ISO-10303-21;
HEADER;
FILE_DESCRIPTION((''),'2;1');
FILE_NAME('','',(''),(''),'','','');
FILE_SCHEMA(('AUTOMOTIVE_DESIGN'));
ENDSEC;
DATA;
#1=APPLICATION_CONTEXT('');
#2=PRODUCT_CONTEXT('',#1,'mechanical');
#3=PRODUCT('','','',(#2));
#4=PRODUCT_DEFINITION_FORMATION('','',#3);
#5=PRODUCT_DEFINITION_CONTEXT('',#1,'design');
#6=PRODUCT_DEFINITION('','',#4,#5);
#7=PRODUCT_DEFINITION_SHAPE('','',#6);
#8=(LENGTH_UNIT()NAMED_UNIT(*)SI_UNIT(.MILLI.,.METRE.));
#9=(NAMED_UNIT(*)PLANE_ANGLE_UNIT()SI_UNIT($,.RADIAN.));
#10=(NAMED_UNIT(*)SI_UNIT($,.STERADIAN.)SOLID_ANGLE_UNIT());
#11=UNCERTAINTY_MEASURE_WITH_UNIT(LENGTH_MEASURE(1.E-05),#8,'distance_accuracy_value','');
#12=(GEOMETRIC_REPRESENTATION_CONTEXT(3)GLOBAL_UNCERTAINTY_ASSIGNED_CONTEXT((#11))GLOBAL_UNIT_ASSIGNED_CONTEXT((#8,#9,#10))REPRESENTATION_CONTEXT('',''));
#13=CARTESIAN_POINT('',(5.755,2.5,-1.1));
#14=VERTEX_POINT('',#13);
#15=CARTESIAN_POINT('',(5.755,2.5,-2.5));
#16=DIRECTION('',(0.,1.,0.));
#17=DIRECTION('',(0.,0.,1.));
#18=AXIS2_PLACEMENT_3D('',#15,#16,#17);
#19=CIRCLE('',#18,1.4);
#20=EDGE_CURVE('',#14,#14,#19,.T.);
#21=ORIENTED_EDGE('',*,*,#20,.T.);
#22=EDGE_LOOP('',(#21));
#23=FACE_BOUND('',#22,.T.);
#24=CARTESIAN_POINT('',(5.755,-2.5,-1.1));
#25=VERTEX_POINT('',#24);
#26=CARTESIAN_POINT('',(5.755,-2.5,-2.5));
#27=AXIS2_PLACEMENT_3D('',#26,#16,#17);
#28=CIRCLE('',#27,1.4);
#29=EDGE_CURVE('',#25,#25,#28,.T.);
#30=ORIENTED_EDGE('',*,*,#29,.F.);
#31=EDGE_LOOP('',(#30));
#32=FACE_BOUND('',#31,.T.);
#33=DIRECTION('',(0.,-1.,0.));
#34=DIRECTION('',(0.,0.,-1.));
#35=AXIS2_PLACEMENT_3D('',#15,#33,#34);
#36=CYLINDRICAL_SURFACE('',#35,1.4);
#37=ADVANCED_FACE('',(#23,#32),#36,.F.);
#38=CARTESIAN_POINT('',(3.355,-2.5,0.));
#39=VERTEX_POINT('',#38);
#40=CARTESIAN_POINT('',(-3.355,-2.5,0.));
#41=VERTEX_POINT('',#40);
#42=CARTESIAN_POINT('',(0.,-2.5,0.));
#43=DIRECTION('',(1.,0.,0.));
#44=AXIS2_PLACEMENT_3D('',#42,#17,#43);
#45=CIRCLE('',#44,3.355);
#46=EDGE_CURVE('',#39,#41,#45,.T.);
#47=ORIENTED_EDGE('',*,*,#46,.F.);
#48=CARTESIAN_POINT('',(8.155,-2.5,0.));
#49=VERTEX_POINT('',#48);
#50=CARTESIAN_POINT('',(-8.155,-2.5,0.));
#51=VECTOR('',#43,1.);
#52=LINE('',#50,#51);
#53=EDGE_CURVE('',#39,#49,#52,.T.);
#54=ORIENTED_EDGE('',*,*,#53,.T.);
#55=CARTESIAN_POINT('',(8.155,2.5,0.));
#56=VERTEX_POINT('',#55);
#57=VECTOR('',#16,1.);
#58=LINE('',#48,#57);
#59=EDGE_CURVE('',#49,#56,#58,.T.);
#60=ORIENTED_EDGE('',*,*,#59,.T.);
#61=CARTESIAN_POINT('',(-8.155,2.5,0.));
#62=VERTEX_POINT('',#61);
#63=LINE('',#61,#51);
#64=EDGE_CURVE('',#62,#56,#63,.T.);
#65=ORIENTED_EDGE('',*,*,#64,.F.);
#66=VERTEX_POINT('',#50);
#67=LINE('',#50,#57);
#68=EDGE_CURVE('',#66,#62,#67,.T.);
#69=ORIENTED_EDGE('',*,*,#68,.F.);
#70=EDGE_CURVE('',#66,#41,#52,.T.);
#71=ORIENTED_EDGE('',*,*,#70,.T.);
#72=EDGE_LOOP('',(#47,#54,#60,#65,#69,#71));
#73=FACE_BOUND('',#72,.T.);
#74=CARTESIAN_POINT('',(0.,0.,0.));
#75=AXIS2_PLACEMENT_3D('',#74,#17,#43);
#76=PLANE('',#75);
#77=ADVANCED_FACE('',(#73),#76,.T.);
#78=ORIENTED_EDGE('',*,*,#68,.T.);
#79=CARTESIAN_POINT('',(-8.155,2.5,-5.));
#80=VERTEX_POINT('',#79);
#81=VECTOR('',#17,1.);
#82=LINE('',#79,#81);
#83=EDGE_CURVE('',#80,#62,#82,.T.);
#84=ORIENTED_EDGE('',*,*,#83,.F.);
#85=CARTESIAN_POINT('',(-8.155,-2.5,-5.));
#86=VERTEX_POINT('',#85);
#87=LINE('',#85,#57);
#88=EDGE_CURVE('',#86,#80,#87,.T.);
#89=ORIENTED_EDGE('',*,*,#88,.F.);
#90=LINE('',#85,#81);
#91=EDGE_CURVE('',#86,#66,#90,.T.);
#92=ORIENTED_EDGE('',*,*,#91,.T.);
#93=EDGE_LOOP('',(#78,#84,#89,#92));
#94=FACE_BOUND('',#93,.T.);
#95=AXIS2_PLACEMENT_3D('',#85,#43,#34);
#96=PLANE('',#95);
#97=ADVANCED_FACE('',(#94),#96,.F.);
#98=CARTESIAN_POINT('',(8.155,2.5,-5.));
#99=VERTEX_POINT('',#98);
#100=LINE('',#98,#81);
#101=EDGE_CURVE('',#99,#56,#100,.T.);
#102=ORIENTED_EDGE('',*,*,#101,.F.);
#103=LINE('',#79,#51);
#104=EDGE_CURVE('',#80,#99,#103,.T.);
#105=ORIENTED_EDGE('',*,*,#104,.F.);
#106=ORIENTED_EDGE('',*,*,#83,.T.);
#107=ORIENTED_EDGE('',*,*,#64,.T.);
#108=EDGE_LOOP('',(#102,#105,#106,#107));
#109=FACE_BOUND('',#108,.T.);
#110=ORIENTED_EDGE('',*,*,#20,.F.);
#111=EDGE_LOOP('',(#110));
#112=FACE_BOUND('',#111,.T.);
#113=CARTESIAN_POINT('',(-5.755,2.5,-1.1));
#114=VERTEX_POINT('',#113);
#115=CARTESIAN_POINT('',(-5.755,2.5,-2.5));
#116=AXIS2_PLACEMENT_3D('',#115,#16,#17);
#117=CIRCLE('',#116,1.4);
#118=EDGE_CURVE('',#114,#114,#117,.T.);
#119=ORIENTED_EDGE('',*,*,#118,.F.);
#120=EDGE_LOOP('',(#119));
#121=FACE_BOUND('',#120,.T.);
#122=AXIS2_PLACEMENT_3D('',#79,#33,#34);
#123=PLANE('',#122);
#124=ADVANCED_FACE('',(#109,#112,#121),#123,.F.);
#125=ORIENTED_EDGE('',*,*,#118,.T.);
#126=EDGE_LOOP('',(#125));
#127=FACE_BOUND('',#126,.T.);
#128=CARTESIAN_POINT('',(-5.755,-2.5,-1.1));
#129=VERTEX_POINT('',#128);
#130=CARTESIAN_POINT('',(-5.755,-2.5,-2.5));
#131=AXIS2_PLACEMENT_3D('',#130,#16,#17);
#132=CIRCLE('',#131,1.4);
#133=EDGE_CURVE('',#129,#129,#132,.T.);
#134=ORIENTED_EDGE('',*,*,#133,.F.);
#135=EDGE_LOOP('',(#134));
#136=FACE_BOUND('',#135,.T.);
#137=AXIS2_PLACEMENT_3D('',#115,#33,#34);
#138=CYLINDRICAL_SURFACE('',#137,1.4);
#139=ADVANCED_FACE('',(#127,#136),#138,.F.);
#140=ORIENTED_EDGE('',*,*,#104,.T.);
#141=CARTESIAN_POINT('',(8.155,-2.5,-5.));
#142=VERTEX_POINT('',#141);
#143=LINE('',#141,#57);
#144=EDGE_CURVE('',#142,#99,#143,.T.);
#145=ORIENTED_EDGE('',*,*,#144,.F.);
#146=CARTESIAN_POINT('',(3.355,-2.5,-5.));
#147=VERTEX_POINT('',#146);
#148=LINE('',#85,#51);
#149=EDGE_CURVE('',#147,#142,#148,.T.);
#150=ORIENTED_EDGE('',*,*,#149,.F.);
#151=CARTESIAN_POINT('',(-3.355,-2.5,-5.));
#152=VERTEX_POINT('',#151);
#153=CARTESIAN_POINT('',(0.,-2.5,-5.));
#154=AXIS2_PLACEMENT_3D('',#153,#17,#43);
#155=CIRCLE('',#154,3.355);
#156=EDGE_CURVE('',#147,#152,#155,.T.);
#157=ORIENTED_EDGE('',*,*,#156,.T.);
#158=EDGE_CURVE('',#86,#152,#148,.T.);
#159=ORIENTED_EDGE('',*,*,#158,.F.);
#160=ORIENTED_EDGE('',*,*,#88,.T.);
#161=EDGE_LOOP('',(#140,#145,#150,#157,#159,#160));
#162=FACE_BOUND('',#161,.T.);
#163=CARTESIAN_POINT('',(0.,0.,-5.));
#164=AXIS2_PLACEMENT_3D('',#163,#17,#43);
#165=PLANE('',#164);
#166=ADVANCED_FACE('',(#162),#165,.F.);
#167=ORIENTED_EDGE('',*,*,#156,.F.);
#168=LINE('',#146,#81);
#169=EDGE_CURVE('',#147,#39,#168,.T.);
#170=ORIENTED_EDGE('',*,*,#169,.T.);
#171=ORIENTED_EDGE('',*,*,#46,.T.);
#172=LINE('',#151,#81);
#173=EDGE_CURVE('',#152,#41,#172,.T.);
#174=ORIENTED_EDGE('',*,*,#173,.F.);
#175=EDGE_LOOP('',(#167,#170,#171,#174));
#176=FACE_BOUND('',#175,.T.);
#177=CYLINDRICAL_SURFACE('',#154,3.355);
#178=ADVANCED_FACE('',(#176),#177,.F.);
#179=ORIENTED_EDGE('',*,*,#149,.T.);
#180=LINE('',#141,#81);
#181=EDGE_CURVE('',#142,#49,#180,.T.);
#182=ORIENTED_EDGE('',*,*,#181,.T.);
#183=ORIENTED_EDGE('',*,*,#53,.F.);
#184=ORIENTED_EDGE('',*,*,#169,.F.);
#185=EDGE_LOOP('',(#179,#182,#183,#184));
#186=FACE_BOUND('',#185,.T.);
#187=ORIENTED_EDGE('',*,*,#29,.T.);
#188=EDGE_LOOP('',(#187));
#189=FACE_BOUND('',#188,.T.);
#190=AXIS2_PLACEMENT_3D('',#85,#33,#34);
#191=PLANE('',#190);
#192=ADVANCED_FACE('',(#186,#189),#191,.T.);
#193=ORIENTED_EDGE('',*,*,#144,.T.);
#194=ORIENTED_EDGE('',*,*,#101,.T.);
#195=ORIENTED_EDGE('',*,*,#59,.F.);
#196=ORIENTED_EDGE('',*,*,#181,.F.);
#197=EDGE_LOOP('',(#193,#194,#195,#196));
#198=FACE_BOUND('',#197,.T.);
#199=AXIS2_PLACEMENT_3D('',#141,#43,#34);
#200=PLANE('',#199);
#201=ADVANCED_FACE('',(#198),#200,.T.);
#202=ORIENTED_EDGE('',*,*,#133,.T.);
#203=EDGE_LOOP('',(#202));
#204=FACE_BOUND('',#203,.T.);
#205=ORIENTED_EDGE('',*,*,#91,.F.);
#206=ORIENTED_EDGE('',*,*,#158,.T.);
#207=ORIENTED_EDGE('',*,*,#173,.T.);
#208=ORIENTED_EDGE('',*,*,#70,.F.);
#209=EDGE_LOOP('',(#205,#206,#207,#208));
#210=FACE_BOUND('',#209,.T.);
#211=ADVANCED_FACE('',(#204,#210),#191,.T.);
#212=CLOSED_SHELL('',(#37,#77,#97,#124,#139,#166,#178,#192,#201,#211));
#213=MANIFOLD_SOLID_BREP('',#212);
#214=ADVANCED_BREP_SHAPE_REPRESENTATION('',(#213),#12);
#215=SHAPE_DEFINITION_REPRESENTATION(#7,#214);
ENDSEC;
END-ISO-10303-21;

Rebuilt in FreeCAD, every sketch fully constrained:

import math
import FreeCAD as App
import Part
import Sketcher

V = App.Vector
Q = App.Units.Quantity


def add_polygon(sketch, points):
    """Adds a closed chain of lines whose ends are joined by coincident constraints."""
    first, n = sketch.GeometryCount, len(points)
    for a, b in zip(points, points[1:] + points[:1]):
        sketch.addGeometry(Part.LineSegment(App.Vector(*a, 0), App.Vector(*b, 0)), False)
    for i in range(n):
        sketch.addConstraint(Sketcher.Constraint("Coincident", first + i, 2, first + (i + 1) % n, 1))

doc = App.newDocument("Part")
body = doc.addObject("PartDesign::Body", "Body")

# Sketch on XY plane
sketch1 = doc.addObject("Sketcher::SketchObject", "Sketch")
body.addObject(sketch1)
sketch1.AttachmentSupport = (doc.XY_Plane, [""])
sketch1.MapMode = "FlatFace"
add_polygon(sketch1, [(-8.155, 2.5), (-8.155, -2.5), (8.155, -2.5), (8.155, 2.5)])  # lines 0-3
sketch1.addConstraint([
    Sketcher.Constraint("Vertical", 0),
    Sketcher.Constraint("Horizontal", 1),
    Sketcher.Constraint("Vertical", 2),
    Sketcher.Constraint("Horizontal", 3),
    Sketcher.Constraint("Symmetric", 0, 2, 2, 2, -1, 1),
    Sketcher.Constraint("DistanceY", 0, 2, 0, 1, Q("5 mm")),
    Sketcher.Constraint("DistanceX", 1, 1, 1, 2, Q("16.31 mm")),
])
pad1 = doc.addObject("PartDesign::Pad", "Pad")
body.addObject(pad1)
pad1.Profile = sketch1
pad1.Length = 5
pad1.Reversed = True

# Sketch on XY plane
sketch2 = doc.addObject("Sketcher::SketchObject", "Sketch001")
body.addObject(sketch2)
sketch2.AttachmentSupport = (doc.XY_Plane, [""])
sketch2.MapMode = "FlatFace"
sketch2.addGeometry([
    Part.LineSegment(V(-3.355, -2.5, 0), V(3.355, -2.5, 0)),
    Part.ArcOfCircle(Part.Circle(V(0, -2.5, 0), V(0, 0, 1), 3.355), math.radians(0), math.radians(180)),
], False)
sketch2.addConstraint([
    Sketcher.Constraint("Coincident", 0, 1, 1, 2),
    Sketcher.Constraint("Coincident", 1, 1, 0, 2),
    Sketcher.Constraint("Horizontal", 0),
    Sketcher.Constraint("PointOnObject", 1, 3, -2),
    Sketcher.Constraint("Horizontal", 1, 3, 0, 1),
    Sketcher.Constraint("Radius", 1, Q("3.355 mm")),
    Sketcher.Constraint("DistanceY", 1, 3, -1, 1, Q("2.5 mm")),
])
pocket1 = doc.addObject("PartDesign::Pocket", "Pocket")
body.addObject(pocket1)
pocket1.Profile = sketch2
pocket1.Length = 5

# Sketch on XZ plane
sketch3 = doc.addObject("Sketcher::SketchObject", "Sketch002")
body.addObject(sketch3)
sketch3.AttachmentSupport = (doc.XZ_Plane, [""])
sketch3.MapMode = "FlatFace"
sketch3.addGeometry([
    Part.Circle(V(-5.755, -2.5, 0), V(0, 0, 1), 1.4),
    Part.Circle(V(5.755, -2.5, 0), V(0, 0, 1), 1.4),
], False)
sketch3.addConstraint([
    Sketcher.Constraint("Equal", 0, 1),
    Sketcher.Constraint("Symmetric", 0, 3, 1, 3, -2),
    Sketcher.Constraint("Diameter", 0, Q("2.8 mm")),
    Sketcher.Constraint("DistanceY", 0, 3, -1, 1, Q("2.5 mm")),
    Sketcher.Constraint("DistanceX", 0, 3, 1, 3, Q("11.51 mm")),
])
pocket2 = doc.addObject("PartDesign::Pocket", "Pocket001")
body.addObject(pocket2)
pocket2.Profile = sketch3
pocket2.Type = "ThroughAll"
pocket2.Midplane = True

doc.recompute()
